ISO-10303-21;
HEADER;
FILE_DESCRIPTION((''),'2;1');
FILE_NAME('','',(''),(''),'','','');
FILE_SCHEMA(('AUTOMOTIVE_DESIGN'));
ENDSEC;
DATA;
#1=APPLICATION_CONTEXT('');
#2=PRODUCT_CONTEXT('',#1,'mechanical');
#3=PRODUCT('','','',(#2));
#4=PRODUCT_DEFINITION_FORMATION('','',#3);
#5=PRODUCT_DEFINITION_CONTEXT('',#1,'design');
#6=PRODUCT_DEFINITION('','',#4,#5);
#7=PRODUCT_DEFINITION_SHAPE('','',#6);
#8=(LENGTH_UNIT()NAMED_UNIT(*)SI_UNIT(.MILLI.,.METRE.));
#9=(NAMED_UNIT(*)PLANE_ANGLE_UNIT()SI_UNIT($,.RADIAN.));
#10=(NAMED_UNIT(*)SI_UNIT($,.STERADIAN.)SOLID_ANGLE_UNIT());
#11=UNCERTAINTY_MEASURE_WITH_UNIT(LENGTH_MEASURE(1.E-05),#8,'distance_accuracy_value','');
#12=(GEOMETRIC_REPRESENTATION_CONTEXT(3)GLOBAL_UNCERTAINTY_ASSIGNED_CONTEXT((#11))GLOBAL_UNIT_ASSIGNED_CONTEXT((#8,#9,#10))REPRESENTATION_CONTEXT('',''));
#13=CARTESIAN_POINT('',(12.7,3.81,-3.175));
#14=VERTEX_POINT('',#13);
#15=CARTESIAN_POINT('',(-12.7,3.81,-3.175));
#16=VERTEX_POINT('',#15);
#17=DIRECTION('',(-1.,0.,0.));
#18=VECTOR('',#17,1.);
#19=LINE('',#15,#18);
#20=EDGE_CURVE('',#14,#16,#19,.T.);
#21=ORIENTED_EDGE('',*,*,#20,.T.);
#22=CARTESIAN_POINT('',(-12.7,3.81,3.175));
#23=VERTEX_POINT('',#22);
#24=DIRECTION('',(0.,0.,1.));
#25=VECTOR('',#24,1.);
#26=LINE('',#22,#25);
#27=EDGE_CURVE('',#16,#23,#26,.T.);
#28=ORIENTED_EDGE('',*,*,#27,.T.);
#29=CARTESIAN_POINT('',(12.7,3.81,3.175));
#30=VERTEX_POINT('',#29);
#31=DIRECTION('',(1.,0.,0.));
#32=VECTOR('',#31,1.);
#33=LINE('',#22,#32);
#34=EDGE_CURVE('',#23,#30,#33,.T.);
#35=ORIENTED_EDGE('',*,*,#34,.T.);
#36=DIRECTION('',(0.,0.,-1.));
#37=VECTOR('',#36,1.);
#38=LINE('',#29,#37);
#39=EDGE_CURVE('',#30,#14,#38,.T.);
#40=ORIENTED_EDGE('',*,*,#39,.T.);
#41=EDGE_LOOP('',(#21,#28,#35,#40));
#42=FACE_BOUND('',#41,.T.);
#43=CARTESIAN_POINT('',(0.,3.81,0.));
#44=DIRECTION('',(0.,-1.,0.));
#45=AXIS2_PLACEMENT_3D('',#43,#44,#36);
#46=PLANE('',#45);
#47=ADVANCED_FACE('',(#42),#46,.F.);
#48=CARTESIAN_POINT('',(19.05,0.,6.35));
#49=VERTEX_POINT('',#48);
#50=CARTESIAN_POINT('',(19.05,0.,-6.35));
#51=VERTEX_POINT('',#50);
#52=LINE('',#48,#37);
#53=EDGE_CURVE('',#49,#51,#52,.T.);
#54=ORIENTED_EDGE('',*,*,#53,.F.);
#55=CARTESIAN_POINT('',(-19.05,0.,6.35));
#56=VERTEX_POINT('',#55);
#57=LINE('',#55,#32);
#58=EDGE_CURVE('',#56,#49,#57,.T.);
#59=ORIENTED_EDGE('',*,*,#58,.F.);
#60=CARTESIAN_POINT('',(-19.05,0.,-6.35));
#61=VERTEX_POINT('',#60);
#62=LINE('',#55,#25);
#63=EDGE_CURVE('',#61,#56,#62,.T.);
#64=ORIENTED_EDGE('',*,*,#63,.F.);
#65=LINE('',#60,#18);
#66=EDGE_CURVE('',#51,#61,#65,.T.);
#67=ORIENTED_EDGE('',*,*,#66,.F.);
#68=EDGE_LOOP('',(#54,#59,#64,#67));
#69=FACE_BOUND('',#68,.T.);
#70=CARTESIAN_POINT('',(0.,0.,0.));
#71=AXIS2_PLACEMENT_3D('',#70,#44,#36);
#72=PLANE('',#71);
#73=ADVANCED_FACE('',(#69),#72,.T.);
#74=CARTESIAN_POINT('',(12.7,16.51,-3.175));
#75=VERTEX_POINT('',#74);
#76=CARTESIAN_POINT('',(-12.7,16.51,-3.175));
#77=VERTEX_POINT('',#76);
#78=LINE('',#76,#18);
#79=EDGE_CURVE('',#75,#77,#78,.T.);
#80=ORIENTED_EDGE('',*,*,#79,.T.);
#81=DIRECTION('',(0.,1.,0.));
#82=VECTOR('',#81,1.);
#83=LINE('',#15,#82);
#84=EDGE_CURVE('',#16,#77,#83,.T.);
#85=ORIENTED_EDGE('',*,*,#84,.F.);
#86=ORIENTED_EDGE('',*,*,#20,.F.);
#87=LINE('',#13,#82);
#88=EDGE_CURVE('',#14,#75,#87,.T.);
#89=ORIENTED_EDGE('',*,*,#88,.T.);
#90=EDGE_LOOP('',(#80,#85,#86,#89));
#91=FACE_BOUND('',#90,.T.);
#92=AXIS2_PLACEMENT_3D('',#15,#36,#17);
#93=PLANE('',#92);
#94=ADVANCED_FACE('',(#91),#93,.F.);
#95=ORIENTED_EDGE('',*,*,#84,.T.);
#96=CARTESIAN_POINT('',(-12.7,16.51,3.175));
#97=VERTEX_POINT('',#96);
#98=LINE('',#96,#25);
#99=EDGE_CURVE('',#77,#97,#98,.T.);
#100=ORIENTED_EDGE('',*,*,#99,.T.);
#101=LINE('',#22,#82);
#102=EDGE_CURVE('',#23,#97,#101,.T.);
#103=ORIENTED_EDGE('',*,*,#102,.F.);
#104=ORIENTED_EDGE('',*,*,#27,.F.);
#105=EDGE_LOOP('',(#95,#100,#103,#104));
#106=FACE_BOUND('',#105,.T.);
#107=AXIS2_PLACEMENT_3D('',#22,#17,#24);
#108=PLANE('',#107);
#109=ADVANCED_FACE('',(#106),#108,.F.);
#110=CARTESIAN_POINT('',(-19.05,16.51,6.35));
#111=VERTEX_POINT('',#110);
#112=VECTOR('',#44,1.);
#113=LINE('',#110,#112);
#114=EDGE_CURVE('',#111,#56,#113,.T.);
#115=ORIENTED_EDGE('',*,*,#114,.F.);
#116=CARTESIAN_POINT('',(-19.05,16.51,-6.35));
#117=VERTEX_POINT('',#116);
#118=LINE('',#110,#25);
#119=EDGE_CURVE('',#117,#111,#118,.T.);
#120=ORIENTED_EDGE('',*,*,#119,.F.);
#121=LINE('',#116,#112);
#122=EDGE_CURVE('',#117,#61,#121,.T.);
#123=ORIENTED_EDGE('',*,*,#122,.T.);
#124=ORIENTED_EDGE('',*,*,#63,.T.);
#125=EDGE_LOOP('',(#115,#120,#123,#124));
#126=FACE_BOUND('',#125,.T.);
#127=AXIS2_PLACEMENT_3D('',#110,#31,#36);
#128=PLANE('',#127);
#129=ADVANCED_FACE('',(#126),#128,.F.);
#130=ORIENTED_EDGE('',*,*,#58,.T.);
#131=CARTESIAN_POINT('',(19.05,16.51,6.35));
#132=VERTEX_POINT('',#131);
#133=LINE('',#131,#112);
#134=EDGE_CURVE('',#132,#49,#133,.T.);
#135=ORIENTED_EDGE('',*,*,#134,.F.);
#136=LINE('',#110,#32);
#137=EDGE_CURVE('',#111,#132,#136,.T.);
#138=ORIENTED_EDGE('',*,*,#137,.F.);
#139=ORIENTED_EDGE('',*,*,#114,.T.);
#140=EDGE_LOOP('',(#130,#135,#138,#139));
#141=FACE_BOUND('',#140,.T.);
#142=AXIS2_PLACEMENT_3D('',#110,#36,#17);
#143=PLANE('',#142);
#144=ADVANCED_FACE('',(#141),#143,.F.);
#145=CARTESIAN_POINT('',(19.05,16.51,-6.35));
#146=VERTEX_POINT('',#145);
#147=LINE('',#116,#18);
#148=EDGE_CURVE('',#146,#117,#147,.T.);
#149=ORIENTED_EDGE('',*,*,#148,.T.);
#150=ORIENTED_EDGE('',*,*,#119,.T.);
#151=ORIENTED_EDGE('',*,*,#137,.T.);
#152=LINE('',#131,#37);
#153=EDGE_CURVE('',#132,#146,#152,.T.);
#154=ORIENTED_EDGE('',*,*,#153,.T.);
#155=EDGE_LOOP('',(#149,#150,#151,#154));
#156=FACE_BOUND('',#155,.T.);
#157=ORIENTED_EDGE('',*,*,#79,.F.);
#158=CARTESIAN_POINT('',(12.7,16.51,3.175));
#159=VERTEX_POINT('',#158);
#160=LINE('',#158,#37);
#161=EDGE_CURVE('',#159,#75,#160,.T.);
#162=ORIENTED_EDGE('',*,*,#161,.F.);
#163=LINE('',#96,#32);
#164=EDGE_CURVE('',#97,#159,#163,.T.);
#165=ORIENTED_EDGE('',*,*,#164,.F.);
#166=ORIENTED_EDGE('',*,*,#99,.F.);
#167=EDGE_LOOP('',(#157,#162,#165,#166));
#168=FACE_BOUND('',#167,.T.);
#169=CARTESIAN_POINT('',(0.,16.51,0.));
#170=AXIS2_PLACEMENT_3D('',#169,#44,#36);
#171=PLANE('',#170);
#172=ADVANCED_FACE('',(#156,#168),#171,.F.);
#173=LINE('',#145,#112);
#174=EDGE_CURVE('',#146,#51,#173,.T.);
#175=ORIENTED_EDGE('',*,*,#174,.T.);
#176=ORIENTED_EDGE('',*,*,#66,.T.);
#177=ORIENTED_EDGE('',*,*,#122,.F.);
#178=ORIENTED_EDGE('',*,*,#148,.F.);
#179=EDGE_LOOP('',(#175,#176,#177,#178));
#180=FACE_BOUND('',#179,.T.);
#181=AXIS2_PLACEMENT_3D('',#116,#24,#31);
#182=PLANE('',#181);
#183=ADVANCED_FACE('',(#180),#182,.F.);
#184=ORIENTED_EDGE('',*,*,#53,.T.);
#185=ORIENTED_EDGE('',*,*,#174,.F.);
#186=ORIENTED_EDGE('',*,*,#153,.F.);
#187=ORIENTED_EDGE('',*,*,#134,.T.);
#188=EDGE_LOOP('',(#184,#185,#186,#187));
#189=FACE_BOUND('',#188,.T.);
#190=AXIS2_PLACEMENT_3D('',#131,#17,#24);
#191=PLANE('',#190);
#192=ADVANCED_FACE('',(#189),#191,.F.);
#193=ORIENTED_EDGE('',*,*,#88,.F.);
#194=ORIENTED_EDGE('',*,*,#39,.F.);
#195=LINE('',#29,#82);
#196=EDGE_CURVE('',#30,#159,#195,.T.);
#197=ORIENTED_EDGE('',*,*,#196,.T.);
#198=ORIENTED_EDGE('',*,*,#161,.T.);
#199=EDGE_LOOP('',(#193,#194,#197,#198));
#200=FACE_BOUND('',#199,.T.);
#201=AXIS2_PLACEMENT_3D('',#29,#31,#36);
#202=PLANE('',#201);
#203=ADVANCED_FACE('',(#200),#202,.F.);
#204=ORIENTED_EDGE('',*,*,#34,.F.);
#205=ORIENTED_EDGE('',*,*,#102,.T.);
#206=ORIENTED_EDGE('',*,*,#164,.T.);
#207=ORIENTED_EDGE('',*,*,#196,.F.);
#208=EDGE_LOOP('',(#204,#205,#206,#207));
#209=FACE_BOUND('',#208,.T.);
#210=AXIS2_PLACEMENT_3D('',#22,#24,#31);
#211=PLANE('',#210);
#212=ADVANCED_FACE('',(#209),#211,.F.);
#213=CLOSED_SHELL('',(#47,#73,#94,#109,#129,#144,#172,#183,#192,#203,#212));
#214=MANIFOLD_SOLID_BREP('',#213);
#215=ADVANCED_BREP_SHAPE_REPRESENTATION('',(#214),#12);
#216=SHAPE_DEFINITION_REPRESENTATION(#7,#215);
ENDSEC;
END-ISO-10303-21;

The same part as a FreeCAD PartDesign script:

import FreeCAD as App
import Part
import Sketcher
Q = App.Units.Quantity


def add_polygon(sketch, points):
    """Adds a closed chain of lines whose ends are joined by coincident constraints."""
    first, n = sketch.GeometryCount, len(points)
    for a, b in zip(points, points[1:] + points[:1]):
        sketch.addGeometry(Part.LineSegment(App.Vector(*a, 0), App.Vector(*b, 0)), False)
    for i in range(n):
        sketch.addConstraint(Sketcher.Constraint("Coincident", first + i, 2, first + (i + 1) % n, 1))

doc = App.newDocument("Part")
params = doc.addObject("Spreadsheet::Sheet", "Params")
for row, (alias, value) in enumerate([
    ("sketch1_width", "1.5 in"),
    ("sketch1_height", "0.5 in"),
    ("pad1_length", "0.65 in"),
    ("sketch2_width", "1 in"),
    ("sketch2_height", "0.25 in"),
    ("pocket1_length", "0.5 in"),
], start=1):
    params.set(f"A{row}", alias)
    params.set(f"B{row}", "=" + value)
    params.setAlias(f"B{row}", alias)

body = doc.addObject("PartDesign::Body", "Body")

# Sketch on XZ plane
sketch1 = doc.addObject("Sketcher::SketchObject", "Sketch")
body.addObject(sketch1)
sketch1.AttachmentSupport = (doc.XZ_Plane, [""])
sketch1.MapMode = "FlatFace"
add_polygon(sketch1, [(-19, -6), (-19, 6), (19, 6), (19, -6)])  # lines 0-3
sketch1.addConstraint([
    Sketcher.Constraint("Vertical", 0),
    Sketcher.Constraint("Horizontal", 1),
    Sketcher.Constraint("Vertical", 2),
    Sketcher.Constraint("Horizontal", 3),
    Sketcher.Constraint("Symmetric", 0, 2, 2, 2, -1, 1),
    Sketcher.Constraint("DistanceX", 1, 1, 1, 2, Q("1.5 in")),
    Sketcher.Constraint("DistanceY", 0, 1, 0, 2, Q("0.5 in")),
])
sketch1.setExpression("Constraints[9]", "Params.sketch1_width")
sketch1.setExpression("Constraints[10]", "Params.sketch1_height")
pad1 = doc.addObject("PartDesign::Pad", "Pad")
body.addObject(pad1)
pad1.Profile = sketch1
pad1.setExpression("Length", "Params.pad1_length")
pad1.Reversed = True

# Sketch on XZ plane
sketch2 = doc.addObject("Sketcher::SketchObject", "Sketch001")
body.addObject(sketch2)
sketch2.AttachmentSupport = (doc.XZ_Plane, [""])
sketch2.MapMode = "FlatFace"
sketch2.AttachmentOffset = App.Placement(App.Vector(0, 0, -0.65 * 25.4), App.Rotation())
add_polygon(sketch2, [(-13, -3), (-13, 3), (13, 3), (13, -3)])  # lines 0-3
sketch2.addConstraint([
    Sketcher.Constraint("Vertical", 0),
    Sketcher.Constraint("Horizontal", 1),
    Sketcher.Constraint("Vertical", 2),
    Sketcher.Constraint("Horizontal", 3),
    Sketcher.Constraint("Symmetric", 0, 2, 2, 2, -1, 1),
    Sketcher.Constraint("DistanceX", 1, 1, 1, 2, Q("1 in")),
    Sketcher.Constraint("DistanceY", 0, 1, 0, 2, Q("0.25 in")),
])
sketch2.setExpression("Constraints[9]", "Params.sketch2_width")
sketch2.setExpression("Constraints[10]", "Params.sketch2_height")
pocket1 = doc.addObject("PartDesign::Pocket", "Pocket")
body.addObject(pocket1)
pocket1.Profile = sketch2
pocket1.setExpression("Length", "Params.pocket1_length")
pocket1.Reversed = True

doc.recompute()
